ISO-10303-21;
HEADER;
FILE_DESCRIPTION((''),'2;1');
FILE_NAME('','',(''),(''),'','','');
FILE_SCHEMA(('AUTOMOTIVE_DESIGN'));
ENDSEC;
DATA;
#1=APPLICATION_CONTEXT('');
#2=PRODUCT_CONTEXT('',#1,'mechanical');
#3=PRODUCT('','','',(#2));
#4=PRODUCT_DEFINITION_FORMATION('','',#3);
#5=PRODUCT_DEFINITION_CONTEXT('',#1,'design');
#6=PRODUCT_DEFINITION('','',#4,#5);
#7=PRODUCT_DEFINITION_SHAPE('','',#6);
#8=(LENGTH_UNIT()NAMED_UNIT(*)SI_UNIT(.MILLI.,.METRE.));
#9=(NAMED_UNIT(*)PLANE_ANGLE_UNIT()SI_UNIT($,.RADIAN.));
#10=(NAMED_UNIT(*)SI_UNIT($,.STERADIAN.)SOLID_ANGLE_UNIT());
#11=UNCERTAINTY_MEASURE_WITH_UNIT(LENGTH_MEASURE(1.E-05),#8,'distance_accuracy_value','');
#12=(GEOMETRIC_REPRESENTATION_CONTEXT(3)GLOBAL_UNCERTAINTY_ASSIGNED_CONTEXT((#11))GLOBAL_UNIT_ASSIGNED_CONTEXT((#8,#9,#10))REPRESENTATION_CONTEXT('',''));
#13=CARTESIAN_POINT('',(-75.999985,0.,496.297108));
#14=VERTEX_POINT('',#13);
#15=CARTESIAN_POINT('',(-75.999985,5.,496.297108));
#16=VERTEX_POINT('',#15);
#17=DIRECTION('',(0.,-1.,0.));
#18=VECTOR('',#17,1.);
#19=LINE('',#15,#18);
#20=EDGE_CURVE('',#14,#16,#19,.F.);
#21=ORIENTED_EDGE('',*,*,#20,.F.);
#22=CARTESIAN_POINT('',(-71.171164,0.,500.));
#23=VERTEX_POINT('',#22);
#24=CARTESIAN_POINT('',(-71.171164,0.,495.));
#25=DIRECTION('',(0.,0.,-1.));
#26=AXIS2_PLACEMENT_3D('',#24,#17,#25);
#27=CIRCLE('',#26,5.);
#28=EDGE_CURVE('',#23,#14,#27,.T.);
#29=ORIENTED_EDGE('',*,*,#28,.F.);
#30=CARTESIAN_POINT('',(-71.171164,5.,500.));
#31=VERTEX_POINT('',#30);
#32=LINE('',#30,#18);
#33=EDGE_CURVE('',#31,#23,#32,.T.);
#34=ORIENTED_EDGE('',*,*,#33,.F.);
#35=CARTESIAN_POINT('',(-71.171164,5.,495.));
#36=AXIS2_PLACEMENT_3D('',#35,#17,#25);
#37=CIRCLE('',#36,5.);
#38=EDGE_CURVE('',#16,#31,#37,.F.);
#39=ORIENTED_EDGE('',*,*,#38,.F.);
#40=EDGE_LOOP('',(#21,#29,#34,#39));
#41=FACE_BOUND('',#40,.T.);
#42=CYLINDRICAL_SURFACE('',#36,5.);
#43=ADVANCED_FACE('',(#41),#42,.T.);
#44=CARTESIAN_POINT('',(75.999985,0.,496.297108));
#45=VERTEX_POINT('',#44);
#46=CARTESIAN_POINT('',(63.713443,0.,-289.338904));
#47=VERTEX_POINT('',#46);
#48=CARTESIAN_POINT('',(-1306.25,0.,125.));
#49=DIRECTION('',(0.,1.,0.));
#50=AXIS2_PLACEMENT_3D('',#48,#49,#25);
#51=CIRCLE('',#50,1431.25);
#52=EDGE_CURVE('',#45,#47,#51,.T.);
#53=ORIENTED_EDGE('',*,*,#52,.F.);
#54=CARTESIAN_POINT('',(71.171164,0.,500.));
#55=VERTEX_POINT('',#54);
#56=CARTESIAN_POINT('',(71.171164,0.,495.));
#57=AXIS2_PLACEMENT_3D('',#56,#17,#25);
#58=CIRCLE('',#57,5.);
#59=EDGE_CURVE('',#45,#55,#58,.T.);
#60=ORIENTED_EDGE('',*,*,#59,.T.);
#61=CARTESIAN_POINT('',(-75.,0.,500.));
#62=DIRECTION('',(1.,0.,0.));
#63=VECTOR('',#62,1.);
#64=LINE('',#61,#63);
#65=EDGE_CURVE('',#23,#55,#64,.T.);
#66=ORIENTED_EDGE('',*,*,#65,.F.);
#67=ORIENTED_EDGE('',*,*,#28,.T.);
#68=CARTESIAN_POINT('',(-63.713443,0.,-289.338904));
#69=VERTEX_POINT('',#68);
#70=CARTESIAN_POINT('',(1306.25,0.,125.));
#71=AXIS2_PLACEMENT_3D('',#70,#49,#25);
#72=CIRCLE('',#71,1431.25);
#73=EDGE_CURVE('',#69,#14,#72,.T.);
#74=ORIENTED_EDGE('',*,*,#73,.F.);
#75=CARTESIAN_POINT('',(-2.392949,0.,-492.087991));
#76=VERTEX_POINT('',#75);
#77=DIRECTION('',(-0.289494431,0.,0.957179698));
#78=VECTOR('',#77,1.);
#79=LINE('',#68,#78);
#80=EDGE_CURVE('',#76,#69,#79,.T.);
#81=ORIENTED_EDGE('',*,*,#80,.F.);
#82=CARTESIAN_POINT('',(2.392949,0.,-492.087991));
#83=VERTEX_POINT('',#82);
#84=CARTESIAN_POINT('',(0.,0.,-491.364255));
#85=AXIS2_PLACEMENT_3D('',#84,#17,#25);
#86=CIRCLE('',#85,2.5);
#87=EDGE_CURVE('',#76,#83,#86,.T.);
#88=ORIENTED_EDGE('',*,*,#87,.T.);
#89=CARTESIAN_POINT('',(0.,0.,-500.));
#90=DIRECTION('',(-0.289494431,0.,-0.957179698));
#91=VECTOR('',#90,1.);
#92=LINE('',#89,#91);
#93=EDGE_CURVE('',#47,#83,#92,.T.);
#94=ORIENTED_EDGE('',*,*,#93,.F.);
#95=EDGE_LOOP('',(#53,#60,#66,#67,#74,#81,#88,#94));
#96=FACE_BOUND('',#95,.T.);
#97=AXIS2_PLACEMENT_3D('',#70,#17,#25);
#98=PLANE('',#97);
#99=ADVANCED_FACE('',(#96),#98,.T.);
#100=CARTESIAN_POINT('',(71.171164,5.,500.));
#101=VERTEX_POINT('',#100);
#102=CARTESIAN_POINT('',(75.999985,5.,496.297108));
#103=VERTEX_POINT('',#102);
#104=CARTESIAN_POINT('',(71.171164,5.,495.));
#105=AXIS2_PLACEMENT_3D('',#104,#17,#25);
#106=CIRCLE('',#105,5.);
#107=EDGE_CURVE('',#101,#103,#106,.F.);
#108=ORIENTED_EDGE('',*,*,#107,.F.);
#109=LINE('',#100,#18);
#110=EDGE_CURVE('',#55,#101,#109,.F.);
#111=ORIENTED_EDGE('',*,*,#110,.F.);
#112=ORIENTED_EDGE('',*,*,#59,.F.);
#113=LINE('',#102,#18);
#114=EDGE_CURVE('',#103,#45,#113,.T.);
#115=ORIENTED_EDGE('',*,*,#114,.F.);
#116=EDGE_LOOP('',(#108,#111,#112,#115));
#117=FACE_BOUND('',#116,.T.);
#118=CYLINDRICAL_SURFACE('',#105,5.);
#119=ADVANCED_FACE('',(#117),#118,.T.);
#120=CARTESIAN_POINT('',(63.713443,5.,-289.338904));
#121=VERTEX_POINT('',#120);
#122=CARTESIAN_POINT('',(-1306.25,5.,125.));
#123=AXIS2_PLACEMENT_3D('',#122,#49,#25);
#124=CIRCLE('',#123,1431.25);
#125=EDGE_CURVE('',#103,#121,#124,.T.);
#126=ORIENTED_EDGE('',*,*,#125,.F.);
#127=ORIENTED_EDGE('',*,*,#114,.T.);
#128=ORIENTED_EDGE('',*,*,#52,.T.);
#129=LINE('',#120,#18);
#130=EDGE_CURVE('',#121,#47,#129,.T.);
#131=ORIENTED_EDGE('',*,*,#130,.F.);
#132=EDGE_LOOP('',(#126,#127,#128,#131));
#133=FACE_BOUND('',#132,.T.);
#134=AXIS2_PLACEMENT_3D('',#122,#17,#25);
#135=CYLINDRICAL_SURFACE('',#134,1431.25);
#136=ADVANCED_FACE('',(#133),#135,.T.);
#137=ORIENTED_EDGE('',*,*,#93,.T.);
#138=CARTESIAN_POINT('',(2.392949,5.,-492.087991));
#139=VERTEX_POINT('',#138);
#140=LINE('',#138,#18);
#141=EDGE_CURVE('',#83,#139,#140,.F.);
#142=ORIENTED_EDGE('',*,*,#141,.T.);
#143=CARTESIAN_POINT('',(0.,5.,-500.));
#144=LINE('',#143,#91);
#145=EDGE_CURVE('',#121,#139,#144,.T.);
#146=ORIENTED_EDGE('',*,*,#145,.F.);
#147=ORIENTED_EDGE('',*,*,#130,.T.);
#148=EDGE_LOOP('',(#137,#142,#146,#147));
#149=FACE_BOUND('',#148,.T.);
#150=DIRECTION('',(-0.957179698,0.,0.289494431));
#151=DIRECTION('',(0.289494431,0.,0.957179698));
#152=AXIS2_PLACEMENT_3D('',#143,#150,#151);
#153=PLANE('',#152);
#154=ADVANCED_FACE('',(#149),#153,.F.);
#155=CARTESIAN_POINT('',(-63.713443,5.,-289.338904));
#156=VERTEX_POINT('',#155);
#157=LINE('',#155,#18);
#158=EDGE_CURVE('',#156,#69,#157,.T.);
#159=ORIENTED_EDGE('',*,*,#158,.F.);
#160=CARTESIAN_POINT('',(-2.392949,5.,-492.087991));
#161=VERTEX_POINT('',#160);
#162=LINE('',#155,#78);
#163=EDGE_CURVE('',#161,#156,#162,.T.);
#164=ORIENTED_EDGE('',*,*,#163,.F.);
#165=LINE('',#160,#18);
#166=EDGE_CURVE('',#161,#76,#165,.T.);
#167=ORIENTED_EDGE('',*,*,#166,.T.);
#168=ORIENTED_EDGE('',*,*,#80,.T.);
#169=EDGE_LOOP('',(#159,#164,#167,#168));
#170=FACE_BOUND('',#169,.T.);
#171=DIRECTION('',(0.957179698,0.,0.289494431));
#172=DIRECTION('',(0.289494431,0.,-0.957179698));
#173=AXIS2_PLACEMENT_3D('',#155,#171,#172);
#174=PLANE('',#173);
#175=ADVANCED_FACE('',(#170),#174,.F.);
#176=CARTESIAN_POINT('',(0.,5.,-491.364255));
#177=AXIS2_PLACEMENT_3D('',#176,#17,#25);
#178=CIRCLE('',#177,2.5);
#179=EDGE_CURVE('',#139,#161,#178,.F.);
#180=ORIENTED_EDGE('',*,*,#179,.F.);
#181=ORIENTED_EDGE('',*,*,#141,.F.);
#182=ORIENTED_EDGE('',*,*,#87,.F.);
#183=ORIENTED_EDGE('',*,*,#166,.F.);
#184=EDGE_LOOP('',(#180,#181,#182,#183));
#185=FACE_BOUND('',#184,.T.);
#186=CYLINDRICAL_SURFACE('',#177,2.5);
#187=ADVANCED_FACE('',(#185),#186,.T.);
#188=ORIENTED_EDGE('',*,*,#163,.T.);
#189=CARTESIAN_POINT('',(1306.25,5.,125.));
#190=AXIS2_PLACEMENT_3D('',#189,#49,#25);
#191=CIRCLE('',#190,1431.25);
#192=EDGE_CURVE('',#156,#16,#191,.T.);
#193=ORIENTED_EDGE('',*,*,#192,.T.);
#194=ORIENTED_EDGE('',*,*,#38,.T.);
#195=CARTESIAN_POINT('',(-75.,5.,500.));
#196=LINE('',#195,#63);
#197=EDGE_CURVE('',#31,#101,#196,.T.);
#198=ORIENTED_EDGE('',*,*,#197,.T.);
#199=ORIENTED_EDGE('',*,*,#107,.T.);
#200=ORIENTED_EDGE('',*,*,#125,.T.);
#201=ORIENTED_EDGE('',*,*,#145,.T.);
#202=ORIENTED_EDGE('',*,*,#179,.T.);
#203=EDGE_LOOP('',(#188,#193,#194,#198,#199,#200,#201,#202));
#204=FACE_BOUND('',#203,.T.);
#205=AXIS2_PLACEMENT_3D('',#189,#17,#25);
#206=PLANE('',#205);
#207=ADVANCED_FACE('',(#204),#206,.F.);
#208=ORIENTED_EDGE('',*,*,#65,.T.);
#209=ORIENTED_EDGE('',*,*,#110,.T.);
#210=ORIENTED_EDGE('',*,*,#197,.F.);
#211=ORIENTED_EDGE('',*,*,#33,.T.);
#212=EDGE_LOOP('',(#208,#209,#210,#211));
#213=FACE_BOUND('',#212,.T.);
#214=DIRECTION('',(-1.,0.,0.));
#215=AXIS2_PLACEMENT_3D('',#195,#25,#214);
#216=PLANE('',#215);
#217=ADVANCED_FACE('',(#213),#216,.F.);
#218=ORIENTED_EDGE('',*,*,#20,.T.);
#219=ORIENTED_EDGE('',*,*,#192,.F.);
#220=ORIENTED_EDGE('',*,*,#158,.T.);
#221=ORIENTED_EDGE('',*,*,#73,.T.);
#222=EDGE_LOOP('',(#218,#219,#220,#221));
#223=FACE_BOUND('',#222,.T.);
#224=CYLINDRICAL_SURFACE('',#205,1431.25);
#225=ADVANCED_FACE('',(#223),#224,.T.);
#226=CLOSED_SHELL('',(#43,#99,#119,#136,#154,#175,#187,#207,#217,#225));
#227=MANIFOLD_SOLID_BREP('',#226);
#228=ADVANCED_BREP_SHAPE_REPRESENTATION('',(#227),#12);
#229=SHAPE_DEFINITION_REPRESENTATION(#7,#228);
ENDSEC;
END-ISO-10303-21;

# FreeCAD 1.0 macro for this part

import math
import FreeCAD as App
import Part
import Sketcher


def edges_at(feature, points):
    """Names of the edges that pass closest to the given points."""
    edges = feature.Shape.Edges
    near = lambda p: min(range(len(edges)), key=lambda i: edges[i].distToShape(Part.Vertex(*p))[0])
    return sorted({f"Edge{near(p) + 1}" for p in points})

doc = App.newDocument("Part")
body = doc.addObject("PartDesign::Body", "Body")

sketch1 = body.newObject("Sketcher::SketchObject", "Sketch")
sketch1.AttachmentSupport = (doc.getObject("XZ_Plane"), [""])
sketch1.MapMode = "FlatFace"
sketch1.addGeometry([
    Part.LineSegment(App.Vector(-75, 500, 0), App.Vector(75, 500, 0)),
    Part.ArcOfCircle(Part.Circle(App.Vector(-1306, 125, 0), App.Vector(0, 0, 1), 1431), math.radians(-17), math.radians(15)),
    Part.LineSegment(App.Vector(64, -289, 0), App.Vector(0, -500, 0)),
    Part.LineSegment(App.Vector(0, -500, 0), App.Vector(-64, -289, 0)),
    Part.ArcOfCircle(Part.Circle(App.Vector(1306, 125, 0), App.Vector(0, 0, 1), 1431), math.radians(165), math.radians(197)),
], False)
sketch1.addConstraint([
    Sketcher.Constraint("Coincident", 0, 2, 1, 2),
    Sketcher.Constraint("Tangent", 1, 1, 2, 1),
    Sketcher.Constraint("Coincident", 2, 2, 3, 1),
    Sketcher.Constraint("Tangent", 3, 2, 4, 2),
    Sketcher.Constraint("Coincident", 4, 1, 0, 1),
    Sketcher.Constraint("Horizontal", 0),
    Sketcher.Constraint("Equal", 1, 4),
    Sketcher.Constraint("Symmetric", 1, 3, 4, 3, -2),
    Sketcher.Constraint("PointOnObject", 2, 2, -2),
    Sketcher.Constraint("DistanceX", 0, 1, 0, 2, 150.0),
    Sketcher.Constraint("Radius", 1, 1431.25),
    Sketcher.Constraint("DistanceY", -1, 1, 1, 3, 125.0),
    Sketcher.Constraint("DistanceY", -1, 1, 0, 2, 500.0),
    Sketcher.Constraint("DistanceY", 2, 2, -1, 1, 500.0),
])
pad1 = body.newObject("PartDesign::Pad", "Pad")
pad1.Profile = sketch1
pad1.Length = 5
pad1.Reversed = True
doc.recompute()

fillet = body.newObject("PartDesign::Fillet", "Fillet")
fillet.Base = (pad1, edges_at(pad1, [(75, 2.5, 500), (-75, 2.5, 500)]))
fillet.Radius = 5
doc.recompute()

fillet2 = body.newObject("PartDesign::Fillet", "Fillet001")
fillet2.Base = (fillet, edges_at(fillet, [(0, 2.5, -500)]))
fillet2.Radius = 2.5

doc.recompute()
